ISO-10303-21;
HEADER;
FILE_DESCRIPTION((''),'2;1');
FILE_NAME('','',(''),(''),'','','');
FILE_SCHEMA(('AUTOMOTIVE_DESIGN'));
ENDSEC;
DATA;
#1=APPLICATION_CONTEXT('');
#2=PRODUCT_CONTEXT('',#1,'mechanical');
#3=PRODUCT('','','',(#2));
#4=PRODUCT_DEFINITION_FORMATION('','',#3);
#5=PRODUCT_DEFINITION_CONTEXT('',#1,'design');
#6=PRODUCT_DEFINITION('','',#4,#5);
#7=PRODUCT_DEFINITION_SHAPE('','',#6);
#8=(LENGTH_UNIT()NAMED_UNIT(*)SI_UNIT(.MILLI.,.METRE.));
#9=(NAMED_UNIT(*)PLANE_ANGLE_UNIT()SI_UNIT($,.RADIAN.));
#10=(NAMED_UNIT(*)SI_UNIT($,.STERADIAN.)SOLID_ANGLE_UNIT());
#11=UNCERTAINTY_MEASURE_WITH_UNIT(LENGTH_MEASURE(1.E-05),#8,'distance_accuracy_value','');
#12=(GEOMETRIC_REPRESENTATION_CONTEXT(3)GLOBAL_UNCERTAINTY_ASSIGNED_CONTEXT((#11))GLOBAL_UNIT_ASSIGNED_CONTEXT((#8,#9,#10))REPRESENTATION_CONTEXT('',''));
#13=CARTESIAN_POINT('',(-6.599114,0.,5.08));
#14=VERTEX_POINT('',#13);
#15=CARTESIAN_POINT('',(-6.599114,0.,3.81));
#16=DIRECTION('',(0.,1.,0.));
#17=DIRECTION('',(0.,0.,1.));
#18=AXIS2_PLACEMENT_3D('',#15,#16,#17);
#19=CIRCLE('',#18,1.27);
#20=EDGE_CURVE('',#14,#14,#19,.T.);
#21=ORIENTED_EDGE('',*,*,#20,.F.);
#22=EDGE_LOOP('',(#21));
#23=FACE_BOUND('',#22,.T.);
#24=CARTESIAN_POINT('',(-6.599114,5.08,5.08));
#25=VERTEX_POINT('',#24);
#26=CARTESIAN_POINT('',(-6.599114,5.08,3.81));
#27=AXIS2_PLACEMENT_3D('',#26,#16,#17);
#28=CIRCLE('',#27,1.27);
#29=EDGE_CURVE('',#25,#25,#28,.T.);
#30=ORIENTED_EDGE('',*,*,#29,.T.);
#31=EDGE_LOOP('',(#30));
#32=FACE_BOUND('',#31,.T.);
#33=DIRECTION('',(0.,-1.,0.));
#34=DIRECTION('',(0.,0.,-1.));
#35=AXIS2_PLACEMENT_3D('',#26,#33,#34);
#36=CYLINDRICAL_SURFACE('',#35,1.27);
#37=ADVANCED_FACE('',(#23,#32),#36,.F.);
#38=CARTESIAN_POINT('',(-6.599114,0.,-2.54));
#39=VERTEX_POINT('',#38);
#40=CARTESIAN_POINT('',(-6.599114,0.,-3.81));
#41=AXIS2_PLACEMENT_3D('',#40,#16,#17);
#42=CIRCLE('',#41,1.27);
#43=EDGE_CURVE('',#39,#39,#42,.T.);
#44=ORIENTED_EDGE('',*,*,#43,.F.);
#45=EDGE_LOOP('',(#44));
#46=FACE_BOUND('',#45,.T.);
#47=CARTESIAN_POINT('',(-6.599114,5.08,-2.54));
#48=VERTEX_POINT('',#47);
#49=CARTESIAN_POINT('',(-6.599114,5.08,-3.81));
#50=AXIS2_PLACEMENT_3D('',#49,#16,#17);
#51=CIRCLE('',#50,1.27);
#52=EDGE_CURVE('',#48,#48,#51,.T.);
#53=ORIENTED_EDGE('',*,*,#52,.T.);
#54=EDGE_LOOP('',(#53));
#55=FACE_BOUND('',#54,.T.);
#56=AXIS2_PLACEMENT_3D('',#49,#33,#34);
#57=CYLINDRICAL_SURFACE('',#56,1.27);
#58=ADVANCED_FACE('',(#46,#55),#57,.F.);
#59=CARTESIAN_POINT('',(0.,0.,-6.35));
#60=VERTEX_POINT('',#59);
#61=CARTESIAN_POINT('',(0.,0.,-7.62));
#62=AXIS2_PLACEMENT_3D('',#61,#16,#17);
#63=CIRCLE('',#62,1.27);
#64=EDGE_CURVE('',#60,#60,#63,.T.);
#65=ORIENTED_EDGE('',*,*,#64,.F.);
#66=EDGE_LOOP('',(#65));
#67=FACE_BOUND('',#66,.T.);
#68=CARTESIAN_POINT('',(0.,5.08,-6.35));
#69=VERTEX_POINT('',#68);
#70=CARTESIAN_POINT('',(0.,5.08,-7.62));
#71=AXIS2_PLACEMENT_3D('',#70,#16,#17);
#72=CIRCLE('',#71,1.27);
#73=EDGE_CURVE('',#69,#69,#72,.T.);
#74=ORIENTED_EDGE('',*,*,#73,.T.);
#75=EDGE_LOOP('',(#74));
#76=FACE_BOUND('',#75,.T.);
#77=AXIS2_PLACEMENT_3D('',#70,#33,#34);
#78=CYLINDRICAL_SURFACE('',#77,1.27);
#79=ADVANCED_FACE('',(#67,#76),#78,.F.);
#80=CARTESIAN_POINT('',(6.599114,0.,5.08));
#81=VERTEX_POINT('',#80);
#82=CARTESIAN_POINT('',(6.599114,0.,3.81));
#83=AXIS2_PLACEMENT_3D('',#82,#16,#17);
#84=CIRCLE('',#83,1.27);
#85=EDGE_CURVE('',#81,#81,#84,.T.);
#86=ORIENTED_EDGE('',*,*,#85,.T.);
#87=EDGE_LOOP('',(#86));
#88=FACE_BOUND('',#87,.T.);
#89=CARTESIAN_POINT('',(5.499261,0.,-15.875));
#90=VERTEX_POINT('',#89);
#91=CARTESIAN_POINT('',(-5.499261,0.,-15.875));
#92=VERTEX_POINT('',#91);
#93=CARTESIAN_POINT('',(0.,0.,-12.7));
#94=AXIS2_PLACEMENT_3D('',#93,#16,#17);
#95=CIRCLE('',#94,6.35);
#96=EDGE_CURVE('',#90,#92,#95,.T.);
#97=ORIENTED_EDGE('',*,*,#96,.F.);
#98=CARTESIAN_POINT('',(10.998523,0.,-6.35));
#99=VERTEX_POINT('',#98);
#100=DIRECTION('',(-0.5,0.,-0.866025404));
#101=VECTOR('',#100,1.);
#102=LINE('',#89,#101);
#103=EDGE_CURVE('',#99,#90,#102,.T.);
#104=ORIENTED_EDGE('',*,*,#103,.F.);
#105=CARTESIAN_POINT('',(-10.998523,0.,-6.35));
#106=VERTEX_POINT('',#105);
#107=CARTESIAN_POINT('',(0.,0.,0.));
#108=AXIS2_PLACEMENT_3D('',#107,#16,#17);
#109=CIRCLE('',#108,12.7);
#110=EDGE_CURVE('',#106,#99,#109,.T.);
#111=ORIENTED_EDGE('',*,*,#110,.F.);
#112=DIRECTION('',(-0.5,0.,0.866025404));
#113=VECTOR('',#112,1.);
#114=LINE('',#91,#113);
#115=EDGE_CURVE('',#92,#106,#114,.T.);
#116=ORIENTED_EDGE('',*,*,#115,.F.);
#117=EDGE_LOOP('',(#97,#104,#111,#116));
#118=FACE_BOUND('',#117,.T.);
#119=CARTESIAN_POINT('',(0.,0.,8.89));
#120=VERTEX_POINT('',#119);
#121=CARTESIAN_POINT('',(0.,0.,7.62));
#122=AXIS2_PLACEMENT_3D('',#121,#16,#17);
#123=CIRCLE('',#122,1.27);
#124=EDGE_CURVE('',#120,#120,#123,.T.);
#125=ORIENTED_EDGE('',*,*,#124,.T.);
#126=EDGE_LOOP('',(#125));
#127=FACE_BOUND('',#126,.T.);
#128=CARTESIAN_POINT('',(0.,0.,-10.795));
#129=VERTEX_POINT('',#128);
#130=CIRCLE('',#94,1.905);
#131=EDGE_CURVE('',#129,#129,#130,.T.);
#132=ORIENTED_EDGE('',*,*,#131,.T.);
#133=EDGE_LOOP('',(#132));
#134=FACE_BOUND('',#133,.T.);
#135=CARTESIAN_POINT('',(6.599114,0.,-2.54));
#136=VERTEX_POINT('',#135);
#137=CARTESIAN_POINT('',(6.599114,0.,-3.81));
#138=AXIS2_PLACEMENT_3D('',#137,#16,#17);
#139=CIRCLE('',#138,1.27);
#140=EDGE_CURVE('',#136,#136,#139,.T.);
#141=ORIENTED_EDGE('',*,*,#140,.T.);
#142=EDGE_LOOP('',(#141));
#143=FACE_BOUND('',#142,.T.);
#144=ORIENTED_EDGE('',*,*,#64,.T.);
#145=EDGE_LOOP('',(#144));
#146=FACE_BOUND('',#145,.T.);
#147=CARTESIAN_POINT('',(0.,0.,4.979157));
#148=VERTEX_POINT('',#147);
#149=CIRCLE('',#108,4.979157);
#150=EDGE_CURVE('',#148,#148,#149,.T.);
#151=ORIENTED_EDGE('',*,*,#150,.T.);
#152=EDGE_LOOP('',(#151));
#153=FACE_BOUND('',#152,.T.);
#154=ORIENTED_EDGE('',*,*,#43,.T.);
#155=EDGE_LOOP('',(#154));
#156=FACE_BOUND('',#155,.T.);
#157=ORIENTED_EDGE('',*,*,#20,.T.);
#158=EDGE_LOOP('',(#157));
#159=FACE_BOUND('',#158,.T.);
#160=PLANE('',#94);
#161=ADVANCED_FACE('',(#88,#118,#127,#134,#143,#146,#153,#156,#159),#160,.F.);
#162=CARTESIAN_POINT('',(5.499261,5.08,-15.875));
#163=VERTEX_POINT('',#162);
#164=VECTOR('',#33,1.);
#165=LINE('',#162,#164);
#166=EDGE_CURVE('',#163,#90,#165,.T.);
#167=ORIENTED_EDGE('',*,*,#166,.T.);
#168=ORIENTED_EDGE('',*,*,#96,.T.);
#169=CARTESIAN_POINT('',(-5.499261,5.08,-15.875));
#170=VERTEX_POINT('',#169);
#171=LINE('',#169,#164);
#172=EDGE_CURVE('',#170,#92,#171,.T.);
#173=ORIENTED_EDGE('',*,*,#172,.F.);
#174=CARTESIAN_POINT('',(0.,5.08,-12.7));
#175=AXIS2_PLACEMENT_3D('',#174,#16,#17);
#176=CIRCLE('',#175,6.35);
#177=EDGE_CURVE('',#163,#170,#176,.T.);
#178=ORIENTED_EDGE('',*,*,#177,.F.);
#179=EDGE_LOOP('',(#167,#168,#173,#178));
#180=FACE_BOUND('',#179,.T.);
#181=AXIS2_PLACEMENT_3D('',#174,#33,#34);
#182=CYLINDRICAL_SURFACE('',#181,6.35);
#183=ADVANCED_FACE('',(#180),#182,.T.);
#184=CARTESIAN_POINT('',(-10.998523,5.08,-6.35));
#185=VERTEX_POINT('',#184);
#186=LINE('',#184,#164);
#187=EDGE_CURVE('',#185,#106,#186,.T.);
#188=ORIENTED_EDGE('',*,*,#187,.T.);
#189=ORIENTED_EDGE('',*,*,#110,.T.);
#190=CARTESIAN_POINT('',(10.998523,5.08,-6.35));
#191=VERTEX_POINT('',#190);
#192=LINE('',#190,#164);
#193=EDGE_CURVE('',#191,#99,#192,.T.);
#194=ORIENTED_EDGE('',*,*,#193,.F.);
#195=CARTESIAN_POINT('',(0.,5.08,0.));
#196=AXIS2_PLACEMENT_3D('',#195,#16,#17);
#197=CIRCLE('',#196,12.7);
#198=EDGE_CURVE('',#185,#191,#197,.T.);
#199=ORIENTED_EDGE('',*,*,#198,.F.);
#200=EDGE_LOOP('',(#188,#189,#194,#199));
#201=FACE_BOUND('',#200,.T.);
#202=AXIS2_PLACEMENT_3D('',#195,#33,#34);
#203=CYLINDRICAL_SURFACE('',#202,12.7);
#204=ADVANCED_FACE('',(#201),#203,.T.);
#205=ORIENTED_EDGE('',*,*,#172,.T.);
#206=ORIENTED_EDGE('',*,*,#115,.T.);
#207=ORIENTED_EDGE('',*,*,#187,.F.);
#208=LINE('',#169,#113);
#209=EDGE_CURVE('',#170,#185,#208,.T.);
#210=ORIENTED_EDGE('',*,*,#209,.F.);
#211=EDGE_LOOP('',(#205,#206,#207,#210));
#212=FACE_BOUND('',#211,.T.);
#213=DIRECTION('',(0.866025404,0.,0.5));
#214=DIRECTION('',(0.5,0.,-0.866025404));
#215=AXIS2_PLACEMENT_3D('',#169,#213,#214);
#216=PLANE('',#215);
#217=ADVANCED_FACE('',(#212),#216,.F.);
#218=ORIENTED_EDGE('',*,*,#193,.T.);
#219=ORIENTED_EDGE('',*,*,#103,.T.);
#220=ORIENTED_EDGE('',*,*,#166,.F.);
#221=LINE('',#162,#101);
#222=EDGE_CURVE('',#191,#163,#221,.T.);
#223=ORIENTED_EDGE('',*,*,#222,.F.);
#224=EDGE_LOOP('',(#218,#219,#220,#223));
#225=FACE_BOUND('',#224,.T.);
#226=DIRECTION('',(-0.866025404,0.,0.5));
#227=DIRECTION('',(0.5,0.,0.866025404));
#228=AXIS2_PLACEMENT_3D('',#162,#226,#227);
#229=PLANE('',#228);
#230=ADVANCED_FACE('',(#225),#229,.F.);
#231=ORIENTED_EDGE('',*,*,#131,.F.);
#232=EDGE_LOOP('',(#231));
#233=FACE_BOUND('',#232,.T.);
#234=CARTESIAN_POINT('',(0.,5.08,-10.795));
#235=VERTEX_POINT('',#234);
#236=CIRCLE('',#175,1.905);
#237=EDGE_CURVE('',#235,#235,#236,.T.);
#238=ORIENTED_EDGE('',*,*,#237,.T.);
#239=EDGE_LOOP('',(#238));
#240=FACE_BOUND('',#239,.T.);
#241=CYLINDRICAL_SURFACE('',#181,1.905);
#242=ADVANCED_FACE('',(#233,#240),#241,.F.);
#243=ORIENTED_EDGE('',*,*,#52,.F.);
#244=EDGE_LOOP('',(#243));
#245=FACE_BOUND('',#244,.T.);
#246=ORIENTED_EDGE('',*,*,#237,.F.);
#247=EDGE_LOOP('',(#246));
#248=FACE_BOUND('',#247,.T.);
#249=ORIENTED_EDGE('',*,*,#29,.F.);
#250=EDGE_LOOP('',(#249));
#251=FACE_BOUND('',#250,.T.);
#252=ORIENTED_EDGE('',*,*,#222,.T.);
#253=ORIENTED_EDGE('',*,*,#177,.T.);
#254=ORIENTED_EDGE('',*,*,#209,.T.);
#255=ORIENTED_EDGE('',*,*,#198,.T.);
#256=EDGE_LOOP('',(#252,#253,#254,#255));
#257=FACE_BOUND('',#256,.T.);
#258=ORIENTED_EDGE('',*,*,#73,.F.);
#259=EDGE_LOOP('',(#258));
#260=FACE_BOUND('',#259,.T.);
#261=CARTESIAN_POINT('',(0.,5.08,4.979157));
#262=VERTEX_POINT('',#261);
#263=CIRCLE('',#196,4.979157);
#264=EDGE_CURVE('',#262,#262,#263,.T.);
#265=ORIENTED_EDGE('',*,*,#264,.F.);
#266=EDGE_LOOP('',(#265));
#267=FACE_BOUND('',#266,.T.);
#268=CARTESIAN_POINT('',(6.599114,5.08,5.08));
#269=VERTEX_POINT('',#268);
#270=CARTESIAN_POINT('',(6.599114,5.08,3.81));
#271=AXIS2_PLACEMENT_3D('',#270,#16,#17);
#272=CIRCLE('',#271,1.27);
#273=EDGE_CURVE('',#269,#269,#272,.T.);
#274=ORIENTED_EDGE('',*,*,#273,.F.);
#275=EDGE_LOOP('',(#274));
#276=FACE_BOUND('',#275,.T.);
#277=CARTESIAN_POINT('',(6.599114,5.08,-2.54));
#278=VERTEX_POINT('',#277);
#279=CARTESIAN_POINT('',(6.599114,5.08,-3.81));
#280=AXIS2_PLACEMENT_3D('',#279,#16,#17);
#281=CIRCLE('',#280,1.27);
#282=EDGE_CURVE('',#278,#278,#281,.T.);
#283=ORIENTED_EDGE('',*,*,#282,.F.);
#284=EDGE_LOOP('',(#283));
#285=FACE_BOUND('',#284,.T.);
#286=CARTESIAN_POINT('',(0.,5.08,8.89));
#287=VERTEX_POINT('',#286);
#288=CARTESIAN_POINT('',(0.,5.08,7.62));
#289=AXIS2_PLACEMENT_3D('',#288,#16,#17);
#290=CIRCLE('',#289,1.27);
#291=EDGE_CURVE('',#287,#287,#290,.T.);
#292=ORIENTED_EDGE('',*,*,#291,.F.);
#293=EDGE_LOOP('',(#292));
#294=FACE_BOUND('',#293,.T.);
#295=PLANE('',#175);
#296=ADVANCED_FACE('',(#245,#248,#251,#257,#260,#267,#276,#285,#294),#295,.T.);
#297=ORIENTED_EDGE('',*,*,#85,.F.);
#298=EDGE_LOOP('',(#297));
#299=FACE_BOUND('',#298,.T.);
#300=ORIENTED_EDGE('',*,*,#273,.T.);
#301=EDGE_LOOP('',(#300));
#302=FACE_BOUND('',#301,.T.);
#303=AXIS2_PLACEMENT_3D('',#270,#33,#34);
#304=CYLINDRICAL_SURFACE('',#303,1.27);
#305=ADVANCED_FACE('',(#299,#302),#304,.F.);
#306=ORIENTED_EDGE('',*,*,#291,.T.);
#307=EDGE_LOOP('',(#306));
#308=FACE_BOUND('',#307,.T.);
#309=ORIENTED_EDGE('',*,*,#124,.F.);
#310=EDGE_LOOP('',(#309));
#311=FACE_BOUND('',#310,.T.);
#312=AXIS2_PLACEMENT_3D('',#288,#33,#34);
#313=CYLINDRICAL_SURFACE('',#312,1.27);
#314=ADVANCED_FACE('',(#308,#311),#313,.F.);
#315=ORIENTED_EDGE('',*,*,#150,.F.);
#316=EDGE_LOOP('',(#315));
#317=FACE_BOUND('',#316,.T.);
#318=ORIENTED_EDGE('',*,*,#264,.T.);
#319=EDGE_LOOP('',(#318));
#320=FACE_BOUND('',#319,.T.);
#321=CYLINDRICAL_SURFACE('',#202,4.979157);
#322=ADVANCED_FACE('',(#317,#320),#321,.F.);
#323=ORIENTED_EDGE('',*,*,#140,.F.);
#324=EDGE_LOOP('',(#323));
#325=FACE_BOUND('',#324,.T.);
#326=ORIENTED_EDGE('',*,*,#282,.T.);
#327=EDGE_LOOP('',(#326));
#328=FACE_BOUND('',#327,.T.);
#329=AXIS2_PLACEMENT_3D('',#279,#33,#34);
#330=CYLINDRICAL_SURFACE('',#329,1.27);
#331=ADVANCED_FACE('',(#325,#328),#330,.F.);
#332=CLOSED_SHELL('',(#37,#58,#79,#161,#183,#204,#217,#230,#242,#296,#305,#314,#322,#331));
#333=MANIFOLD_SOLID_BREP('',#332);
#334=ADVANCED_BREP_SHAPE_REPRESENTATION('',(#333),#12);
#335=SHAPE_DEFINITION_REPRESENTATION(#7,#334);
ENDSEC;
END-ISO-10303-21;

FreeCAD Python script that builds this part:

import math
import FreeCAD as App
import Part
import Sketcher
from FreeCAD import Vector
Q = App.Units.Quantity

doc = App.newDocument("Part")
body = doc.addObject("PartDesign::Body", "Body")

# Sketch on XZ plane
sketch1 = body.newObject("Sketcher::SketchObject", "Sketch")
sketch1.AttachmentSupport = (doc.getObject("XZ_Plane"), [""])
sketch1.MapMode = "FlatFace"
sketch1.addGeometry([
    Part.LineSegment(Vector(-5.5, -15.9, 0), Vector(-11, -6.3, 0)),  # 0
    Part.ArcOfCircle(Part.Circle(Vector(0, 0, 0), Vector(0, 0, 1), 12.7), math.radians(-30), math.radians(210)),  # 1
    Part.LineSegment(Vector(11, -6.3, 0), Vector(5.5, -15.9, 0)),  # 2
    Part.ArcOfCircle(Part.Circle(Vector(0, -12.7, 0), Vector(0, 0, 1), 6.3), math.radians(-150), math.radians(-30)),  # 3
    Part.Circle(Vector(-6.6, 3.8, 0), Vector(0, 0, 1), 1.3),  # 4
    Part.Circle(Vector(0, 7.6, 0), Vector(0, 0, 1), 1.3),  # 5
    Part.Circle(Vector(0, 0, 0), Vector(0, 0, 1), 5),  # 6
    Part.Circle(Vector(6.6, 3.8, 0), Vector(0, 0, 1), 1.3),  # 7
    Part.Circle(Vector(-6.6, -3.8, 0), Vector(0, 0, 1), 1.3),  # 8
    Part.Circle(Vector(0, -7.6, 0), Vector(0, 0, 1), 1.3),  # 9
    Part.Circle(Vector(0, -12.7, 0), Vector(0, 0, 1), 1.9),  # 10
    Part.Circle(Vector(6.6, -3.8, 0), Vector(0, 0, 1), 1.3),  # 11
], False)
sketch1.addConstraint([
    Sketcher.Constraint("Tangent", 0, 2, 1, 2),
    Sketcher.Constraint("Tangent", 1, 1, 2, 1),
    Sketcher.Constraint("Tangent", 2, 2, 3, 2),
    Sketcher.Constraint("Tangent", 3, 1, 0, 1),
    Sketcher.Constraint("Coincident", 1, 3, -1, 1),
    Sketcher.Constraint("Coincident", 6, 3, -1, 1),
    Sketcher.Constraint("Coincident", 10, 3, 3, 3),
    Sketcher.Constraint("Equal", 4, 5),
    Sketcher.Constraint("Equal", 5, 7),
    Sketcher.Constraint("Equal", 7, 8),
    Sketcher.Constraint("Equal", 8, 9),
    Sketcher.Constraint("Equal", 9, 11),
    Sketcher.Constraint("Symmetric", 7, 3, 8, 3, -1, 1),
    Sketcher.Constraint("Symmetric", 5, 3, 9, 3, -1, 1),
    Sketcher.Constraint("Symmetric", 4, 3, 11, 3, -1, 1),
    Sketcher.Constraint("Symmetric", 4, 3, 7, 3, -2),
    Sketcher.Constraint("PointOnObject", 3, 3, -2),
    Sketcher.Constraint("PointOnObject", 5, 3, -2),
    Sketcher.Constraint("Diameter", 4, Q("0.1 in")),
    Sketcher.Constraint("Radius", 1, Q("0.5 in")),
    Sketcher.Constraint("Diameter", 10, Q("0.15 in")),
    Sketcher.Constraint("Radius", 3, Q("0.25 in")),
    Sketcher.Constraint("Angle", 0, Q("120 deg")),
    Sketcher.Constraint("DistanceY", -1, 1, 5, 3, Q("0.3 in")),
    Sketcher.Constraint("DistanceY", 8, 3, 4, 3, Q("0.3 in")),
    Sketcher.Constraint("Diameter", 6, 9.958313),
    Sketcher.Constraint("DistanceX", 0, 2, 8, 3, 4.399409),
])
pad1 = body.newObject("PartDesign::Pad", "Pad")
pad1.Profile = sketch1
pad1.Length = Q("0.2 in")
pad1.Reversed = True

doc.recompute()
